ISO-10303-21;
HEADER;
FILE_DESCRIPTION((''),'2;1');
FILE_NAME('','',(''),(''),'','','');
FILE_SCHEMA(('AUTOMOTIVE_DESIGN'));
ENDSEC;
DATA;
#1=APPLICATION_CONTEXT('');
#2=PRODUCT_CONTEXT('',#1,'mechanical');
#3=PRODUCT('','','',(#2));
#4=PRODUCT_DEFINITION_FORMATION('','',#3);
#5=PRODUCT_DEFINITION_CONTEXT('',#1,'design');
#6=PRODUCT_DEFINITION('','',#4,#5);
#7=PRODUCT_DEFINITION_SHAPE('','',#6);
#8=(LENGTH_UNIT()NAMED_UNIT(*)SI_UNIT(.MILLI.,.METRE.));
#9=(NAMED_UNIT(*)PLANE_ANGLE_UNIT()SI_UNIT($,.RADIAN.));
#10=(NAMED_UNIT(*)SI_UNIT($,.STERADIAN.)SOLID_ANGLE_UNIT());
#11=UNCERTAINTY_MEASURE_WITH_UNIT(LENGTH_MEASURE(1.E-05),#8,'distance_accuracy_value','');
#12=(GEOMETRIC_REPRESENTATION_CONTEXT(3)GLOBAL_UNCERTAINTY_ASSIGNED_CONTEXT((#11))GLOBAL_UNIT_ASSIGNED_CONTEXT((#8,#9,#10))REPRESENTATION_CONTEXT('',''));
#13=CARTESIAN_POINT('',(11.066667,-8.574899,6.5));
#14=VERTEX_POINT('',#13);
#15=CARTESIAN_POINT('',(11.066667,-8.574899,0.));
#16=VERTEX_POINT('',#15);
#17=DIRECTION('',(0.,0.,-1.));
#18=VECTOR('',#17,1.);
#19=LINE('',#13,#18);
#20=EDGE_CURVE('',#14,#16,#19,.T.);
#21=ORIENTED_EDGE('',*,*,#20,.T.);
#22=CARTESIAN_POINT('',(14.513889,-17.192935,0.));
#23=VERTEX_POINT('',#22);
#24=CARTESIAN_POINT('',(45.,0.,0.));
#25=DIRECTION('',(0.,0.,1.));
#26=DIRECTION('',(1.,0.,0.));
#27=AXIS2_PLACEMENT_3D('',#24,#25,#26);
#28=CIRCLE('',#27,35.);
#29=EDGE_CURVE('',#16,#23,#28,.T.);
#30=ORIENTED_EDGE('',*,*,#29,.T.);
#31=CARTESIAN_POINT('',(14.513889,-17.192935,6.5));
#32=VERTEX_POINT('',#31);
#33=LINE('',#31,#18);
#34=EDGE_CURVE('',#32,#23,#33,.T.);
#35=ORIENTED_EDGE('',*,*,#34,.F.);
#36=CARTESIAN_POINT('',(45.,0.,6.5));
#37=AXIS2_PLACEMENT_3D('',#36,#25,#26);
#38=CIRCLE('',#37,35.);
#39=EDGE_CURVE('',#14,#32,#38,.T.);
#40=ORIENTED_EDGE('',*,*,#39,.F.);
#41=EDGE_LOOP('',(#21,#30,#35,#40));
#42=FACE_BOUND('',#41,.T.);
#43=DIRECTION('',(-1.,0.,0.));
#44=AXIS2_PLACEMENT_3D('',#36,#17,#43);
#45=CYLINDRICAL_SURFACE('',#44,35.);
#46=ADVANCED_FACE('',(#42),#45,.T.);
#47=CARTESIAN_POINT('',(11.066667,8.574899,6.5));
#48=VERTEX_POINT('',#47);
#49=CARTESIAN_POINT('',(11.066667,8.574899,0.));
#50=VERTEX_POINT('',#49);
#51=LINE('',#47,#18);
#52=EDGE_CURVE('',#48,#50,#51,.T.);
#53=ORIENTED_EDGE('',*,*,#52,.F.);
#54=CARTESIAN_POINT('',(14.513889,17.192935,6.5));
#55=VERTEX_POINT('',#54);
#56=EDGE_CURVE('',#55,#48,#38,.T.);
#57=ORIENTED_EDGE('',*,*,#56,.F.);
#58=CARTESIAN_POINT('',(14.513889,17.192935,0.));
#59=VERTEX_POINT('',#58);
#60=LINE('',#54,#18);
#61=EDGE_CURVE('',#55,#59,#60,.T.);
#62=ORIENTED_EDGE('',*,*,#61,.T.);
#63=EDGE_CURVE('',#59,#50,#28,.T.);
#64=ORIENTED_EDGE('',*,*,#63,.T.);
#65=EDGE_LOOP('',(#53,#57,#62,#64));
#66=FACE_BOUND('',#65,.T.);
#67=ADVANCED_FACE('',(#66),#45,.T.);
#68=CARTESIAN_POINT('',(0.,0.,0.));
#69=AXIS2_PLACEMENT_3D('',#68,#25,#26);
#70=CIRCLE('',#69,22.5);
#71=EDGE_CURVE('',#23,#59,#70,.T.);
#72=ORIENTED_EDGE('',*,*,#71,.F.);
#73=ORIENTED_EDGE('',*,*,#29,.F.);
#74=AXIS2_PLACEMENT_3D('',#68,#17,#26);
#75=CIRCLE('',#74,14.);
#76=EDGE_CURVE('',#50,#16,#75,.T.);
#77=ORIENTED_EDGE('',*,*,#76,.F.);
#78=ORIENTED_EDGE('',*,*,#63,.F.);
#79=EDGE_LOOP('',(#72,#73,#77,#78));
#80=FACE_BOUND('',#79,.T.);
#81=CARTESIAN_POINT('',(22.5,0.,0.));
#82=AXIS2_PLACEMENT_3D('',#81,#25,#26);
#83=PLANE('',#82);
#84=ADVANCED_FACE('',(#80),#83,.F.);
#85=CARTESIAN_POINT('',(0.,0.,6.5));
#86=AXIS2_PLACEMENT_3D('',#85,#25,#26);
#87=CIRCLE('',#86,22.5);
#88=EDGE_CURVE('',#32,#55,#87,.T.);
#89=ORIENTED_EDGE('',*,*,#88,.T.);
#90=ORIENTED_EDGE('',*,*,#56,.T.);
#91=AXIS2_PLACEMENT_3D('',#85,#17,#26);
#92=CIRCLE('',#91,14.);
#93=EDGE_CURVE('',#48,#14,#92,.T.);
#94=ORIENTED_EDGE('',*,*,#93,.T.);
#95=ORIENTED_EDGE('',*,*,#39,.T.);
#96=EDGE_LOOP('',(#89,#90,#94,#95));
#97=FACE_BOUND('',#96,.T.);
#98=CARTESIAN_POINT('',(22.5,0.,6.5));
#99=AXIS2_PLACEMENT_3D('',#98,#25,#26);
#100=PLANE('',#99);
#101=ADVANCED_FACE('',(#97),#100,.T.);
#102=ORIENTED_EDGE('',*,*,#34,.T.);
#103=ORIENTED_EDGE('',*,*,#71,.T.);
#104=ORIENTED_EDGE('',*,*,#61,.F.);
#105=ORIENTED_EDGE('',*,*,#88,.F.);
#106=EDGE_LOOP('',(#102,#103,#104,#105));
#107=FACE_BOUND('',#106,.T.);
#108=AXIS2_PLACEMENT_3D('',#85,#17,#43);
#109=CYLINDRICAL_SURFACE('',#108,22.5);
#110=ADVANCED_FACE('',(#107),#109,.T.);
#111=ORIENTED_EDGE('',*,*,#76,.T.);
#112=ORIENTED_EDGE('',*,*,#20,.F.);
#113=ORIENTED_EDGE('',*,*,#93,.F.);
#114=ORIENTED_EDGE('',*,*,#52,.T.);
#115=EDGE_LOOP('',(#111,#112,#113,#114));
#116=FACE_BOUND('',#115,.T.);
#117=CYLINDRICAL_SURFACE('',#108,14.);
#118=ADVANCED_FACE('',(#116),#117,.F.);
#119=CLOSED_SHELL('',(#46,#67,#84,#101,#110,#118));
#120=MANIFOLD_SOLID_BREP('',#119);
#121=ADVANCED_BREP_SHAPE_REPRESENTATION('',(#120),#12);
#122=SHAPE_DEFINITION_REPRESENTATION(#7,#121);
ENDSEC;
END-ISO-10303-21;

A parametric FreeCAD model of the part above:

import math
import FreeCAD as App
import Part
import Sketcher
from FreeCAD import Vector

doc = App.newDocument("Part")
body = doc.addObject("PartDesign::Body", "Body")

sketch1 = doc.addObject("Sketcher::SketchObject", "Sketch")
body.addObject(sketch1)
sketch1.AttachmentSupport = (doc.XY_Plane, [""])
sketch1.MapMode = "FlatFace"
sketch1.addGeometry(Part.ArcOfCircle(Part.Circle(Vector(0, 0, 0), Vector(0, 0, 1), 22), math.radians(-50), math.radians(50)), False)
sketch1.addGeometry(Part.ArcOfCircle(Part.Circle(Vector(45, 0, 0), Vector(0, 0, 1), 35), math.radians(150.58), math.radians(165.82)), False)
sketch1.addGeometry(Part.ArcOfCircle(Part.Circle(Vector(0, 0, 0), Vector(0, 0, 1), 14), math.radians(-38), math.radians(38)), False)
sketch1.addGeometry(Part.ArcOfCircle(Part.Circle(Vector(45, 0, 0), Vector(0, 0, 1), 35), math.radians(-165.82), math.radians(-150.58)), False)
sketch1.addConstraint(Sketcher.Constraint("Coincident", 0, 2, 1, 1))
sketch1.addConstraint(Sketcher.Constraint("Coincident", 1, 2, 2, 2))
sketch1.addConstraint(Sketcher.Constraint("Coincident", 2, 1, 3, 1))
sketch1.addConstraint(Sketcher.Constraint("Coincident", 3, 2, 0, 1))
sketch1.addConstraint(Sketcher.Constraint("Coincident", 0, 3, -1, 1))
sketch1.addConstraint(Sketcher.Constraint("Coincident", 2, 3, -1, 1))
sketch1.addConstraint(Sketcher.Constraint("Coincident", 3, 3, 1, 3))
sketch1.addConstraint(Sketcher.Constraint("Equal", 1, 3))
sketch1.addConstraint(Sketcher.Constraint("PointOnObject", 1, 3, -1))
sketch1.addConstraint(Sketcher.Constraint("Radius", 1, 35.0))
sketch1.addConstraint(Sketcher.Constraint("Radius", 2, 14.0))
sketch1.addConstraint(Sketcher.Constraint("Radius", 0, 22.5))
sketch1.addConstraint(Sketcher.Constraint("DistanceX", -1, 1, 1, 3, 45.0))
pad1 = doc.addObject("PartDesign::Pad", "Pad")
body.addObject(pad1)
pad1.Profile = sketch1
pad1.Length = 6.5

doc.recompute()
